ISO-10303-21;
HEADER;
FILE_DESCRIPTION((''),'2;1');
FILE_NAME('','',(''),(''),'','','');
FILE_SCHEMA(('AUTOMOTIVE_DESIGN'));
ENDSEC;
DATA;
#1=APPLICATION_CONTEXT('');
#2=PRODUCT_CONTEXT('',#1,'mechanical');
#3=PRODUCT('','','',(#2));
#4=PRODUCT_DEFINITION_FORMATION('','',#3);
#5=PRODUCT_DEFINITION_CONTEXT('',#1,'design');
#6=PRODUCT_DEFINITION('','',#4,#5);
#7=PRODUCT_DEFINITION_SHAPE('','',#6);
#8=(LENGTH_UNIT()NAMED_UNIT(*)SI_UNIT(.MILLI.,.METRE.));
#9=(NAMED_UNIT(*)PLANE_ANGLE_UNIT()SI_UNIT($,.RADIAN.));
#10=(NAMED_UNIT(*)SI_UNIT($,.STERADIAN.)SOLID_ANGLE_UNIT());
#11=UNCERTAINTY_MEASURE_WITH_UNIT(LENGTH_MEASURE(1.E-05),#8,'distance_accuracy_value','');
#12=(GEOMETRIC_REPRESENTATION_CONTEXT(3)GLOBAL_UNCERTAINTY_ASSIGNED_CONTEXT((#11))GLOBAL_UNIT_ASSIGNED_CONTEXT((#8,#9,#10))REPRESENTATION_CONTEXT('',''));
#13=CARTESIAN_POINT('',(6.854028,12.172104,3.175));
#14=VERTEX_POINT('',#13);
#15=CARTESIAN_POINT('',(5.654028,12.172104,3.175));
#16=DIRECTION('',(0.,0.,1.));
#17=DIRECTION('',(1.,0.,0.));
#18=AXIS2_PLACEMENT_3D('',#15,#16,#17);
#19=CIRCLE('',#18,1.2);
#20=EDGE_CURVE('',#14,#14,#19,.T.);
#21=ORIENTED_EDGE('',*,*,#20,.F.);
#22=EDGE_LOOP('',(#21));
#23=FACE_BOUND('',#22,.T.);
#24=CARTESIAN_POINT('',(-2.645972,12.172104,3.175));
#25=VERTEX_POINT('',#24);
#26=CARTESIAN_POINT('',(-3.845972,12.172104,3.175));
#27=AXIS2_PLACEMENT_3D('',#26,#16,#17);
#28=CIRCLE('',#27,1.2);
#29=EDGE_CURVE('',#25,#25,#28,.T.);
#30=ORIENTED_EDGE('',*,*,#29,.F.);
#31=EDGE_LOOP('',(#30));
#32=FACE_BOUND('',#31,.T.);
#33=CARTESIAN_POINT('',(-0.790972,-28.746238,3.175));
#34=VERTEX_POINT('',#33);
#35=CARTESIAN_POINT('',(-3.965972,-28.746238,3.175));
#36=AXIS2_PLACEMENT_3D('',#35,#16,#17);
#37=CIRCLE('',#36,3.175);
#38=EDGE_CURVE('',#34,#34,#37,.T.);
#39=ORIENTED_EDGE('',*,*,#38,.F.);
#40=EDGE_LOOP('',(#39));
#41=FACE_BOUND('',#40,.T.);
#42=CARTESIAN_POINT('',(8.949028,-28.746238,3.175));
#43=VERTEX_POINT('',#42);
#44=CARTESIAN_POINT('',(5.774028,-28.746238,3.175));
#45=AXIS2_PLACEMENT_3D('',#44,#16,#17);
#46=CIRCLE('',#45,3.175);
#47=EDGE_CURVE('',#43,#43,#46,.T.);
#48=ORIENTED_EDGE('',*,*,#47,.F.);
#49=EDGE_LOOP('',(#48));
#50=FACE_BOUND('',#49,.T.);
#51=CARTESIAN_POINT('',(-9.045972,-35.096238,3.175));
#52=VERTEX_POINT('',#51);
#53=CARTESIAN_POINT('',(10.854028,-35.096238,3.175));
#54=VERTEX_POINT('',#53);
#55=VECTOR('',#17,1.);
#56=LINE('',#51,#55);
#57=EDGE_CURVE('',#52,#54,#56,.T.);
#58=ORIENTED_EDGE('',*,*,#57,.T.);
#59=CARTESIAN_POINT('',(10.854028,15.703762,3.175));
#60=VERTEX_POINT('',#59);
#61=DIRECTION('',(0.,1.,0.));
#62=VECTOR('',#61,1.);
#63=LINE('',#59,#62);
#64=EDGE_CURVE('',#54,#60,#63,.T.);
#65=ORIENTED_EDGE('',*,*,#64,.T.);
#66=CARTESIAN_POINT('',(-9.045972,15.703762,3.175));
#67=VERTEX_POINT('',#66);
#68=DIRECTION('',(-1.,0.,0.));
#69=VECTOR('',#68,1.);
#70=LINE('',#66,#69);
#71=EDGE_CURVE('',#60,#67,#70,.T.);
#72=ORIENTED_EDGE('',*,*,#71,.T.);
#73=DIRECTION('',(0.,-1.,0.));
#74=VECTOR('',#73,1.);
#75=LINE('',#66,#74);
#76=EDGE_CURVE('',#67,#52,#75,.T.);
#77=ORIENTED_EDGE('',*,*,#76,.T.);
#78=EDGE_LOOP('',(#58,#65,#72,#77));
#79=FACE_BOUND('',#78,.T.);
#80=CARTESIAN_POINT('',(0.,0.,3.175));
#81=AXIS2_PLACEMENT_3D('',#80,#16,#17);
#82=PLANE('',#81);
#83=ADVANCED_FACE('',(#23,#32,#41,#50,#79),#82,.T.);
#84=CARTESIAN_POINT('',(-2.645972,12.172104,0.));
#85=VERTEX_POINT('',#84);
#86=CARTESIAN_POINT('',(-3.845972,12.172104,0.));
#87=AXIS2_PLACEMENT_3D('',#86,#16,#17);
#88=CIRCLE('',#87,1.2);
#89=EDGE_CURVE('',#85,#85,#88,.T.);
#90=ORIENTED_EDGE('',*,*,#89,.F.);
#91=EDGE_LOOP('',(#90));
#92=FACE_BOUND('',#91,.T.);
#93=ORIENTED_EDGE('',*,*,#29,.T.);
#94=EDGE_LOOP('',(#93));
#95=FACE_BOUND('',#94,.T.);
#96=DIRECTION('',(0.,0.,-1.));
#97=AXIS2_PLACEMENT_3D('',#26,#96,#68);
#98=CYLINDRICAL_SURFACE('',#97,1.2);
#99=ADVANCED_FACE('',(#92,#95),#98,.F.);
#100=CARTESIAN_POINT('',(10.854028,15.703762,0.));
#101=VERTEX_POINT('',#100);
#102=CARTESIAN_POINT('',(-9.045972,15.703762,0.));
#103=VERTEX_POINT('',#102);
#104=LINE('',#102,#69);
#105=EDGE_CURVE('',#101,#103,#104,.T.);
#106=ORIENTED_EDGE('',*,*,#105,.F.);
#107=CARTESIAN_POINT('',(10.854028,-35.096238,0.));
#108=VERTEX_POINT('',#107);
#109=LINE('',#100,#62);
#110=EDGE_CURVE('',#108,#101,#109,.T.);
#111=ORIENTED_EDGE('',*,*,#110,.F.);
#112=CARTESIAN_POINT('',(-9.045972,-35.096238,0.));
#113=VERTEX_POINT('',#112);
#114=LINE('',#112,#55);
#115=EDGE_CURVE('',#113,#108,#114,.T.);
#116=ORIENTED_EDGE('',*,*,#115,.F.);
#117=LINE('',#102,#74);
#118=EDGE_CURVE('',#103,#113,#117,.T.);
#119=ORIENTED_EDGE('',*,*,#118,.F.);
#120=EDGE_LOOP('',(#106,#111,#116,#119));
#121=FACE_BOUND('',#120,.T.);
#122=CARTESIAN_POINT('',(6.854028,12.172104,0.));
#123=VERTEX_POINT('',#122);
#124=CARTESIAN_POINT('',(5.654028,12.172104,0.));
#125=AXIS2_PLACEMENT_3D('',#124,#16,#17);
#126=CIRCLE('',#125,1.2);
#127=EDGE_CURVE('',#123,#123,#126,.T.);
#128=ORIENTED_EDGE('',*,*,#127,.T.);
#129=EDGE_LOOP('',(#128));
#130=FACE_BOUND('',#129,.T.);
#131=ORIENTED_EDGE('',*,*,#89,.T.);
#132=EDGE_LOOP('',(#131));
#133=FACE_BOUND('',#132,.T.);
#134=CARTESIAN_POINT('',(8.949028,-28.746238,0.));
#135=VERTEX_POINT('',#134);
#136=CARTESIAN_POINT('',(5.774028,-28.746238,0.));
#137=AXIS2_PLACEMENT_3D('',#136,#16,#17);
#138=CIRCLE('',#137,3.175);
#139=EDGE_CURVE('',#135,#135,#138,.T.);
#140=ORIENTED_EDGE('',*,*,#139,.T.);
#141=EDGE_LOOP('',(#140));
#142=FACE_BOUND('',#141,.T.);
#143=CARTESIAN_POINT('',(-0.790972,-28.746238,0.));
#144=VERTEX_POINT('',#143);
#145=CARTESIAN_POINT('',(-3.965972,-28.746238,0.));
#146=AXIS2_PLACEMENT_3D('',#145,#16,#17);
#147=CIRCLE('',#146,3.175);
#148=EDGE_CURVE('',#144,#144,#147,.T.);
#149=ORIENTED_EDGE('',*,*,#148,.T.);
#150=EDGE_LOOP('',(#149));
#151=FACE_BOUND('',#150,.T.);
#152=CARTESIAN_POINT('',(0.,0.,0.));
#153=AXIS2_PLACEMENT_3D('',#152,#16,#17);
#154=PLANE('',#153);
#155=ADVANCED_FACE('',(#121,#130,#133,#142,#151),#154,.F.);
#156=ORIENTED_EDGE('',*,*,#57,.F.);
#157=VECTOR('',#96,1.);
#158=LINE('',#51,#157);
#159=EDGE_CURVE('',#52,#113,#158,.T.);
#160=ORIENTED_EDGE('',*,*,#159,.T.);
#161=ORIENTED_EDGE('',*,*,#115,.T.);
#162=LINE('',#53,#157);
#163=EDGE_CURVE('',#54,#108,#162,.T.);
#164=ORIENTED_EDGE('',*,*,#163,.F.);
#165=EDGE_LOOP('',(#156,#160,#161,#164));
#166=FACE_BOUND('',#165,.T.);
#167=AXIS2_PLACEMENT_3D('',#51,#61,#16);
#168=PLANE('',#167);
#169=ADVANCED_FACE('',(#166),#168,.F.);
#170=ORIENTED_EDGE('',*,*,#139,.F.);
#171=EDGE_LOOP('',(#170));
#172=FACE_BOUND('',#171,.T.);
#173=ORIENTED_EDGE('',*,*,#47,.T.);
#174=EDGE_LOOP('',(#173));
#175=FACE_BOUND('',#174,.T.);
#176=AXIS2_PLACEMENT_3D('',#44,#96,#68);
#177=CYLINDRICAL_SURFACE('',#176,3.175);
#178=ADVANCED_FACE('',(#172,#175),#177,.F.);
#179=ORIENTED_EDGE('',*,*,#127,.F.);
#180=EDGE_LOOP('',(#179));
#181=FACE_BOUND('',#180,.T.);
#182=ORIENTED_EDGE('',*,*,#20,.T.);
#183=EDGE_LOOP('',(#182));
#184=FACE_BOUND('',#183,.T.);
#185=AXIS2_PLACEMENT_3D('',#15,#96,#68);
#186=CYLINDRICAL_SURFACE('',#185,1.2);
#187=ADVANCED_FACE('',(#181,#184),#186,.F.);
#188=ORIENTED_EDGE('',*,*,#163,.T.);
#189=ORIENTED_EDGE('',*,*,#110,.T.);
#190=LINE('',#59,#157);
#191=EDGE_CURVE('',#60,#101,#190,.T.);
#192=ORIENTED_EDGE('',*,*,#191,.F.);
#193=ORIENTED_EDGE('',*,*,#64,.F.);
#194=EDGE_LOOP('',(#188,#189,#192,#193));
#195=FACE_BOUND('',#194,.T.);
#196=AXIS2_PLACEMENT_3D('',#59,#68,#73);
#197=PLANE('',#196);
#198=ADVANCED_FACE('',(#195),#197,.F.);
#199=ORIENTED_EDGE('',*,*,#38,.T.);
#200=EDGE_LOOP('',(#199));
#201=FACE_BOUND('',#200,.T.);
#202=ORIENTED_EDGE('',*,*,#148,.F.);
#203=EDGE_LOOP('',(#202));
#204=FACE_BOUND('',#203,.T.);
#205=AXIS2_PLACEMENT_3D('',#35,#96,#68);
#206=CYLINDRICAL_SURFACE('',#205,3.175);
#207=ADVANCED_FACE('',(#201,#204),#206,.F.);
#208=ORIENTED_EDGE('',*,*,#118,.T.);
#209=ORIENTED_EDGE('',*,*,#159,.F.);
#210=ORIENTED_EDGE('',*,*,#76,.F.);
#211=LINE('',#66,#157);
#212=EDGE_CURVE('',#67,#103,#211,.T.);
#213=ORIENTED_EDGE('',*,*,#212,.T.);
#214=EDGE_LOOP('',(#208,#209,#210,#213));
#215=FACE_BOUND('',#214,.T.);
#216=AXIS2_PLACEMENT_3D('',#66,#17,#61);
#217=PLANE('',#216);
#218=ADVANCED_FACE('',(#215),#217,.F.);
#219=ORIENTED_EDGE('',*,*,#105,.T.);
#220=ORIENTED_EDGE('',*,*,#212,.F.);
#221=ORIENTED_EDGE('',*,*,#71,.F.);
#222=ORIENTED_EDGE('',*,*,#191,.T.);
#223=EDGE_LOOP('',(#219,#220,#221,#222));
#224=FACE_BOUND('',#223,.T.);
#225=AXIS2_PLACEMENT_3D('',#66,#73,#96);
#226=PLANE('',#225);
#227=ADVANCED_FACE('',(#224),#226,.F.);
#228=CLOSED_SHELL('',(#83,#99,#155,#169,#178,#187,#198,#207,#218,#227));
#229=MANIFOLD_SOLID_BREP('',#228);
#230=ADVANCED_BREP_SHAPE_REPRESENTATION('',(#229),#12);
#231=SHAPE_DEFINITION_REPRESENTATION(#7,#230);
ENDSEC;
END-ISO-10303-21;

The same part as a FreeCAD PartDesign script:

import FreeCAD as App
import Part
import Sketcher
Q = App.Units.Quantity

doc = App.newDocument("Part")
body = doc.addObject("PartDesign::Body", "Body")

sketch1 = doc.addObject("Sketcher::SketchObject", "Sketch")
body.addObject(sketch1)
sketch1.AttachmentSupport = (doc.XY_Plane, [""])
sketch1.MapMode = "FlatFace"
sketch1.addGeometry(Part.LineSegment(App.Vector(-9, 15.7, 0), App.Vector(-9, -35.1, 0)), False)
sketch1.addGeometry(Part.LineSegment(App.Vector(-9, -35.1, 0), App.Vector(10.9, -35.1, 0)), False)
sketch1.addGeometry(Part.LineSegment(App.Vector(10.9, -35.1, 0), App.Vector(10.9, 15.7, 0)), False)
sketch1.addGeometry(Part.LineSegment(App.Vector(10.9, 15.7, 0), App.Vector(-9, 15.7, 0)), False)
sketch1.addGeometry(Part.Circle(App.Vector(-4, -28.7, 0), App.Vector(0, 0, 1), 3.2), False)
sketch1.addGeometry(Part.Circle(App.Vector(5.8, -28.7, 0), App.Vector(0, 0, 1), 3.2), False)
sketch1.addGeometry(Part.Circle(App.Vector(-3.8, 12.2, 0), App.Vector(0, 0, 1), 1.2), False)
sketch1.addGeometry(Part.Circle(App.Vector(5.7, 12.2, 0), App.Vector(0, 0, 1), 1.2), False)
sketch1.addConstraint(Sketcher.Constraint("Coincident", 0, 2, 1, 1))
sketch1.addConstraint(Sketcher.Constraint("Coincident", 1, 2, 2, 1))
sketch1.addConstraint(Sketcher.Constraint("Coincident", 2, 2, 3, 1))
sketch1.addConstraint(Sketcher.Constraint("Coincident", 3, 2, 0, 1))
sketch1.addConstraint(Sketcher.Constraint("Vertical", 0))
sketch1.addConstraint(Sketcher.Constraint("Horizontal", 1))
sketch1.addConstraint(Sketcher.Constraint("Vertical", 2))
sketch1.addConstraint(Sketcher.Constraint("Horizontal", 3))
sketch1.addConstraint(Sketcher.Constraint("Equal", 4, 5))
sketch1.addConstraint(Sketcher.Constraint("Equal", 6, 7))
sketch1.addConstraint(Sketcher.Constraint("Horizontal", 4, 3, 5, 3))
sketch1.addConstraint(Sketcher.Constraint("Horizontal", 6, 3, 7, 3))
sketch1.addConstraint(Sketcher.Constraint("Diameter", 4, Q("0.25 in")))
sketch1.addConstraint(Sketcher.Constraint("DistanceY", 0, 2, 0, 1, Q("2 in")))
sketch1.addConstraint(Sketcher.Constraint("DistanceX", 0, 2, 4, 3, Q("0.2 in")))
sketch1.addConstraint(Sketcher.Constraint("DistanceX", 5, 3, 1, 2, Q("0.2 in")))
sketch1.addConstraint(Sketcher.Constraint("Diameter", 6, 2.4))
sketch1.addConstraint(Sketcher.Constraint("DistanceY", 0, 2, 4, 3, Q("0.25 in")))
sketch1.addConstraint(Sketcher.Constraint("DistanceX", 1, 1, 1, 2, 19.9))
sketch1.addConstraint(Sketcher.Constraint("DistanceX", 4, 3, 6, 3, 0.12))
sketch1.addConstraint(Sketcher.Constraint("DistanceX", 6, 3, 7, 3, 9.5))
sketch1.addConstraint(Sketcher.Constraint("DistanceX", 4, 3, -1, 1, 3.965972))
sketch1.addConstraint(Sketcher.Constraint("DistanceY", 4, 3, -1, 1, 28.746238))
sketch1.addConstraint(Sketcher.Constraint("DistanceY", -1, 1, 6, 3, 12.172104))
pad1 = doc.addObject("PartDesign::Pad", "Pad")
body.addObject(pad1)
pad1.Profile = sketch1
pad1.Length = Q("0.125 in")

doc.recompute()
